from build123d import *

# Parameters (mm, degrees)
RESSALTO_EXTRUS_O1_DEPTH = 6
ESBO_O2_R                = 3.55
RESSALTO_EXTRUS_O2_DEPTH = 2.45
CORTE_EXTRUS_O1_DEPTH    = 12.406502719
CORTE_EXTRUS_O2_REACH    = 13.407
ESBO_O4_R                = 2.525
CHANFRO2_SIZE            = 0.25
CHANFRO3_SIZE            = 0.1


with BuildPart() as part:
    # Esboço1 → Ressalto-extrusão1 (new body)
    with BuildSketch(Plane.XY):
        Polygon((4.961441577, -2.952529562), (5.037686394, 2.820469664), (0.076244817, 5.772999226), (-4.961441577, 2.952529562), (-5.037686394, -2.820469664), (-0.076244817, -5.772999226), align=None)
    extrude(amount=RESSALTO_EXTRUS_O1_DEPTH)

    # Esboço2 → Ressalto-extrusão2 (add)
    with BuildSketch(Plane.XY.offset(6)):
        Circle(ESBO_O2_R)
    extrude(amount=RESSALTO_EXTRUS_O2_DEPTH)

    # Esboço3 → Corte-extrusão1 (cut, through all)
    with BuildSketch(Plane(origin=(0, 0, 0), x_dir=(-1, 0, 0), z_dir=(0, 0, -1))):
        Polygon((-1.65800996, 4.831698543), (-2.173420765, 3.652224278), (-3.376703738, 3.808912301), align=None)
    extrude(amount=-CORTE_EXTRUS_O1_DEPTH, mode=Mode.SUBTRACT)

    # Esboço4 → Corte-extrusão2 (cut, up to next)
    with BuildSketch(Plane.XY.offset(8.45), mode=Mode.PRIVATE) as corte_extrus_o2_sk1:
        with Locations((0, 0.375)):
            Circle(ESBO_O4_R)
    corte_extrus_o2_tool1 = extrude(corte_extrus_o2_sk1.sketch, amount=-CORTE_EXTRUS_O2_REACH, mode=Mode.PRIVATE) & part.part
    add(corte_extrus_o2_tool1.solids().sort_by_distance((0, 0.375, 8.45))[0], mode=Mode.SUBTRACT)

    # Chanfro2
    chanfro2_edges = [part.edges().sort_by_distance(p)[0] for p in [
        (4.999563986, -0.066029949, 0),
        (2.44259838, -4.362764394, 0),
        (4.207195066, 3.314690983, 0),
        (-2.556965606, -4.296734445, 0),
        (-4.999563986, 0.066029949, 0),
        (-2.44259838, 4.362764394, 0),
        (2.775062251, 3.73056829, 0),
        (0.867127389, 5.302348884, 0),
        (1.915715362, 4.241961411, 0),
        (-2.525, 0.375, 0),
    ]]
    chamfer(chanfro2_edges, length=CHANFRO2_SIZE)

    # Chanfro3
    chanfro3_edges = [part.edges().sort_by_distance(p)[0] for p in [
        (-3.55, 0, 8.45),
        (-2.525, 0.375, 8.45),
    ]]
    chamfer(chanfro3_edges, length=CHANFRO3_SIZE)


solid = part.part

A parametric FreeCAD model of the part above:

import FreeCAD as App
import Part
import Sketcher
from FreeCAD import Vector


def edges_at(feature, points):
    """Names of the edges that pass closest to the given points."""
    edges = feature.Shape.Edges
    near = lambda p: min(range(len(edges)), key=lambda i: edges[i].distToShape(Part.Vertex(*p))[0])
    return sorted({f"Edge{near(p) + 1}" for p in points})

doc = App.newDocument("Part")
body = doc.addObject("PartDesign::Body", "Body")

sketch1 = doc.addObject("Sketcher::SketchObject", "Sketch")
body.addObject(sketch1)
sketch1.AttachmentSupport = (doc.XY_Plane, [""])
sketch1.MapMode = "FlatFace"
sketch1.addGeometry(Part.LineSegment(Vector(5, -3, 0), Vector(5, 3, 0)), False)
sketch1.addGeometry(Part.LineSegment(Vector(5, 3, 0), Vector(0, 6, 0)), False)
sketch1.addGeometry(Part.LineSegment(Vector(0, 6, 0), Vector(-5, 3, 0)), False)
sketch1.addGeometry(Part.LineSegment(Vector(-5, 3, 0), Vector(-5, -3, 0)), False)
sketch1.addGeometry(Part.LineSegment(Vector(-5, -3, 0), Vector(0, -6, 0)), False)
sketch1.addGeometry(Part.LineSegment(Vector(0, -6, 0), Vector(5, -3, 0)), False)
sketch1.addConstraint(Sketcher.Constraint("Coincident", 0, 2, 1, 1))
sketch1.addConstraint(Sketcher.Constraint("Coincident", 1, 2, 2, 1))
sketch1.addConstraint(Sketcher.Constraint("Coincident", 2, 2, 3, 1))
sketch1.addConstraint(Sketcher.Constraint("Coincident", 3, 2, 4, 1))
sketch1.addConstraint(Sketcher.Constraint("Coincident", 4, 2, 5, 1))
sketch1.addConstraint(Sketcher.Constraint("Coincident", 5, 2, 0, 1))
sketch1.addConstraint(Sketcher.Constraint("Symmetric", 0, 2, 3, 2, -1, 1))
sketch1.addConstraint(Sketcher.Constraint("Symmetric", 1, 2, 4, 2, -1, 1))
sketch1.addConstraint(Sketcher.Constraint("Symmetric", 2, 2, 5, 2, -1, 1))
sketch1.addConstraint(Sketcher.Constraint("Equal", 0, 1))
sketch1.addConstraint(Sketcher.Constraint("Equal", 1, 2))
sketch1.addConstraint(Sketcher.Constraint("DistanceY", -1, 1, 1, 2, 5.772999))
sketch1.addConstraint(Sketcher.Constraint("DistanceY", 3, 2, 2, 2, 5.772999))
sketch1.addConstraint(Sketcher.Constraint("DistanceY", -1, 1, 0, 2, 2.82047))
sketch1.addConstraint(Sketcher.Constraint("DistanceX", 2, 2, -1, 1, 4.961442))
pad1 = doc.addObject("PartDesign::Pad", "Pad")
body.addObject(pad1)
pad1.Profile = sketch1
pad1.Length = 6

sketch2 = doc.addObject("Sketcher::SketchObject", "Sketch001")
body.addObject(sketch2)
sketch2.AttachmentSupport = (doc.XY_Plane, [""])
sketch2.MapMode = "FlatFace"
sketch2.AttachmentOffset = App.Placement(Vector(0, 0, 6), App.Rotation())
sketch2.addGeometry(Part.Circle(Vector(0, 0, 0), Vector(0, 0, 1), 3.5), False)
sketch2.addConstraint(Sketcher.Constraint("Coincident", 0, 3, -1, 1))
sketch2.addConstraint(Sketcher.Constraint("Diameter", 0, 7.1))
pad2 = doc.addObject("PartDesign::Pad", "Pad001")
body.addObject(pad2)
pad2.Profile = sketch2
pad2.Length = 2.45

sketch3 = doc.addObject("Sketcher::SketchObject", "Sketch002")
body.addObject(sketch3)
sketch3.AttachmentSupport = (doc.XY_Plane, [""])
sketch3.MapMode = "FlatFace"
sketch3.addGeometry(Part.LineSegment(Vector(2.2, 3.7, 0), Vector(1.7, 4.8, 0)), False)
sketch3.addGeometry(Part.LineSegment(Vector(1.7, 4.8, 0), Vector(3.4, 3.8, 0)), False)
sketch3.addGeometry(Part.LineSegment(Vector(3.4, 3.8, 0), Vector(2.2, 3.7, 0)), False)
sketch3.addConstraint(Sketcher.Constraint("Coincident", 0, 2, 1, 1))
sketch3.addConstraint(Sketcher.Constraint("Coincident", 1, 2, 2, 1))
sketch3.addConstraint(Sketcher.Constraint("Coincident", 2, 2, 0, 1))
sketch3.addConstraint(Sketcher.Constraint("Distance", 1, 2.0))
sketch3.addConstraint(Sketcher.Constraint("DistanceY", -1, 1, 0, 2, 4.831699))
sketch3.addConstraint(Sketcher.Constraint("Distance", 0, 1.28717))
sketch3.addConstraint(Sketcher.Constraint("Distance", 2, 1.213442))
sketch3.addConstraint(Sketcher.Constraint("DistanceX", -1, 1, 0, 2, 1.65801))
sketch3.addConstraint(Sketcher.Constraint("DistanceX", -1, 1, 2, 2, 2.173421))
pocket1 = doc.addObject("PartDesign::Pocket", "Pocket")
body.addObject(pocket1)
pocket1.Profile = sketch3
pocket1.Type = "ThroughAll"
pocket1.Reversed = True

sketch4 = doc.addObject("Sketcher::SketchObject", "Sketch003")
body.addObject(sketch4)
sketch4.AttachmentSupport = (doc.XY_Plane, [""])
sketch4.MapMode = "FlatFace"
sketch4.AttachmentOffset = App.Placement(Vector(0, 0, 8.45), App.Rotation())
sketch4.addGeometry(Part.Circle(Vector(0, 0.4, 0), Vector(0, 0, 1), 2.5), False)
sketch4.addConstraint(Sketcher.Constraint("PointOnObject", 0, 3, -2))
sketch4.addConstraint(Sketcher.Constraint("Diameter", 0, 5.05))
sketch4.addConstraint(Sketcher.Constraint("DistanceY", -1, 1, 0, 3, 0.375))
pocket2 = doc.addObject("PartDesign::Pocket", "Pocket001")
body.addObject(pocket2)
pocket2.Profile = sketch4
pocket2.Type = "UpToFirst"
doc.recompute()

chamfer = doc.addObject("PartDesign::Chamfer", "Chamfer")
body.addObject(chamfer)
chamfer.Base = (pocket2, edges_at(pocket2, [
    (5, -0.066, 0),
    (2.443, -4.363, 0),
    (4.207, 3.315, 0),
    (-2.557, -4.297, 0),
    (-5, 0.066, 0),
    (-2.443, 4.363, 0),
    (2.775, 3.731, 0),
    (0.867, 5.302, 0),
    (1.916, 4.242, 0),
    (-2.525, 0.375, 0),
]))
chamfer.Size = 0.25
doc.recompute()

chamfer2 = doc.addObject("PartDesign::Chamfer", "Chamfer001")
body.addObject(chamfer2)
chamfer2.Base = (chamfer, edges_at(chamfer, [(-3.55, 0, 8.45), (-2.525, 0.375, 8.45)]))
chamfer2.Size = 0.1

doc.recompute()
